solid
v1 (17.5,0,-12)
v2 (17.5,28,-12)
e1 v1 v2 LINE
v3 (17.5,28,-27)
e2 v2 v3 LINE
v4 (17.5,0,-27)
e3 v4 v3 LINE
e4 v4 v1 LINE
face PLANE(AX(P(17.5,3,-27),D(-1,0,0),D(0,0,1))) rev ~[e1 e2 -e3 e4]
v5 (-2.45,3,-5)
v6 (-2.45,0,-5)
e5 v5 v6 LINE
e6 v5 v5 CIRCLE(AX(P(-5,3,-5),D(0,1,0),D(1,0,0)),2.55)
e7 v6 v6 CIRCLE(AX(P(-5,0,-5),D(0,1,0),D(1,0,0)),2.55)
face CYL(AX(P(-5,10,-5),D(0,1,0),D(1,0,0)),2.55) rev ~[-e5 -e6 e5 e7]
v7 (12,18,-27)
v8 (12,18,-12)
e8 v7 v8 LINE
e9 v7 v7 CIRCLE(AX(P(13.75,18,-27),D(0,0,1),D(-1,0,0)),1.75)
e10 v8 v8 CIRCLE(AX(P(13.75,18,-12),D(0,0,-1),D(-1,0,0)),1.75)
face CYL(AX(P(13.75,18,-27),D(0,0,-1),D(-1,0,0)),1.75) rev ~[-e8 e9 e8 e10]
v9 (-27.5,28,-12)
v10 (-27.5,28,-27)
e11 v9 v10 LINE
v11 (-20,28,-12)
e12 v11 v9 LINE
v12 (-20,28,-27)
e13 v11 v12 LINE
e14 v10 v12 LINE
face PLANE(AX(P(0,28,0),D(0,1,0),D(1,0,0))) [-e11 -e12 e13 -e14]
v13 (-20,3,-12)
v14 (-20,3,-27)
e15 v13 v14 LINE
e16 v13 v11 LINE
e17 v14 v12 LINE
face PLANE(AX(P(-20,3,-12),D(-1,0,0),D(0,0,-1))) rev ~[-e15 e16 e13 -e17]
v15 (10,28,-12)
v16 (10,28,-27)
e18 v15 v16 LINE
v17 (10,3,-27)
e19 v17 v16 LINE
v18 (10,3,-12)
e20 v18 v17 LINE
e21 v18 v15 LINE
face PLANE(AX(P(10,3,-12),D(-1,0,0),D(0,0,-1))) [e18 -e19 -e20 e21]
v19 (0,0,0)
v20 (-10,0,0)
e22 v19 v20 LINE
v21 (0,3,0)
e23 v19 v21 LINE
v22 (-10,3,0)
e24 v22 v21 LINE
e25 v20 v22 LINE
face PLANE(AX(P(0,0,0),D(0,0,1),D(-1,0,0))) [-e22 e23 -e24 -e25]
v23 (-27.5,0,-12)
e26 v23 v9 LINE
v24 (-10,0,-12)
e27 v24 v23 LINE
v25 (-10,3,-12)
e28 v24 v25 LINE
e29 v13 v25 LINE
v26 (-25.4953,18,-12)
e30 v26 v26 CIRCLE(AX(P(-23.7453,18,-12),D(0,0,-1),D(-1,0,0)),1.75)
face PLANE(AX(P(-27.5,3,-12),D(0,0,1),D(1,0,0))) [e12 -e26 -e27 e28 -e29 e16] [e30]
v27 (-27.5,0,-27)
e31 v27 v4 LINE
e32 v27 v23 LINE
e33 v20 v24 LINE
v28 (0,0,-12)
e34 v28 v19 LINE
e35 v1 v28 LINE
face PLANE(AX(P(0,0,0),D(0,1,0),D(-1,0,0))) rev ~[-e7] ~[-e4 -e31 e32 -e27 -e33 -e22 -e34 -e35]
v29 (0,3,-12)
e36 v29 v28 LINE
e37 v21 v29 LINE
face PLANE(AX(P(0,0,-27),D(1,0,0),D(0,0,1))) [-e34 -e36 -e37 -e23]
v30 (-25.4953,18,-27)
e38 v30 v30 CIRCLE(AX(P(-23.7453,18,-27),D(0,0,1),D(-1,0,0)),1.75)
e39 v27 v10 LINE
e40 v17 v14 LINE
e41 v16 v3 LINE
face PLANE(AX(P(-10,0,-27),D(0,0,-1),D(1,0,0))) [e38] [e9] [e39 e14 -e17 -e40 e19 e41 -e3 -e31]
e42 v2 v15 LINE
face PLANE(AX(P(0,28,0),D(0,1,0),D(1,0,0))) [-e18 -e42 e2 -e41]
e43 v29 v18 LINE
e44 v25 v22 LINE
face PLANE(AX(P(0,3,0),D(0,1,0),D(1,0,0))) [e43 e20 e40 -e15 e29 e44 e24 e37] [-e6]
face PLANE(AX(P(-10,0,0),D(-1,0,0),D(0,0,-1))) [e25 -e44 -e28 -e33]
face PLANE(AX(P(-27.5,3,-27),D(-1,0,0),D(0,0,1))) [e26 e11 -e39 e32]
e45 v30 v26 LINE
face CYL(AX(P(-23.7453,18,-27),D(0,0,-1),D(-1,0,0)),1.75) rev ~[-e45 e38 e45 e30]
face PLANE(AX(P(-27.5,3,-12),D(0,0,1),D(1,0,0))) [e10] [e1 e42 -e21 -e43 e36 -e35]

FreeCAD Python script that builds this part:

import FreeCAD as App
import Part
import Sketcher

V = App.Vector

doc = App.newDocument("Part")
params = doc.addObject("Spreadsheet::Sheet", "Params")
for row, (alias, value) in enumerate([
    ("sketch1_width", "10 mm"),
    ("sketch1_height", "27 mm"),
    ("pad1_length", "10 mm"),
    ("sketch2_diameter", "5.1 mm"),
    ("pocket1_length", "10 mm"),
    ("sketch3_height", "27 mm"),
    ("sketch3_width", "10 mm"),
    ("pocket2_length", "7 mm"),
    ("sketch4_height", "15 mm"),
    ("sketch4_width", "45 mm"),
    ("pad2_length", "3 mm"),
    ("sketch5_height", "15 mm"),
    ("sketch5_width", "7.5 mm"),
    ("pad3_length", "25 mm"),
    ("sketch6_diameter", "3.5 mm"),
    ("pocket3_length", "25 mm"),
], start=1):
    params.set(f"A{row}", alias)
    params.set(f"B{row}", "=" + value)
    params.setAlias(f"B{row}", alias)

body = doc.addObject("PartDesign::Body", "Body")

sketch1 = doc.addObject("Sketcher::SketchObject", "Sketch")
body.addObject(sketch1)
sketch1.AttachmentSupport = (doc.XZ_Plane, [""])
sketch1.MapMode = "FlatFace"
sketch1.addGeometry(Part.LineSegment(V(-10, 0, 0), V(0, 0, 0)), False)
sketch1.addGeometry(Part.LineSegment(V(0, 0, 0), V(0, -27, 0)), False)
sketch1.addGeometry(Part.LineSegment(V(0, -27, 0), V(-10, -27, 0)), False)
sketch1.addGeometry(Part.LineSegment(V(-10, -27, 0), V(-10, 0, 0)), False)
sketch1.addConstraint(Sketcher.Constraint("Coincident", 0, 2, 1, 1))
sketch1.addConstraint(Sketcher.Constraint("Coincident", 1, 2, 2, 1))
sketch1.addConstraint(Sketcher.Constraint("Coincident", 2, 2, 3, 1))
sketch1.addConstraint(Sketcher.Constraint("Coincident", 3, 2, 0, 1))
sketch1.addConstraint(Sketcher.Constraint("Horizontal", 0))
sketch1.addConstraint(Sketcher.Constraint("Vertical", 1))
sketch1.addConstraint(Sketcher.Constraint("Horizontal", 2))
sketch1.addConstraint(Sketcher.Constraint("Vertical", 3))
sketch1.addConstraint(Sketcher.Constraint("Coincident", 0, 2, -1, 1))
sketch1.addConstraint(Sketcher.Constraint("DistanceX", 0, 1, 0, 2, 10.0))
sketch1.addConstraint(Sketcher.Constraint("DistanceY", 1, 2, 1, 1, 27.0))
sketch1.setExpression("Constraints[9]", "Params.sketch1_width")
sketch1.setExpression("Constraints[10]", "Params.sketch1_height")
pad1 = doc.addObject("PartDesign::Pad", "Pad")
body.addObject(pad1)
pad1.Profile = sketch1
pad1.setExpression("Length", "Params.pad1_length")
pad1.Reversed = True

sketch2 = doc.addObject("Sketcher::SketchObject", "Sketch001")
body.addObject(sketch2)
sketch2.AttachmentSupport = (doc.XZ_Plane, [""])
sketch2.MapMode = "FlatFace"
sketch2.AttachmentOffset = App.Placement(V(0, 0, -10), App.Rotation())
sketch2.addGeometry(Part.Circle(V(-5, -5, 0), V(0, 0, 1), 2.55), False)
sketch2.addConstraint(Sketcher.Constraint("Diameter", 0, 5.1))
sketch2.addConstraint(Sketcher.Constraint("DistanceX", 0, 3, -1, 1, 5.0))
sketch2.addConstraint(Sketcher.Constraint("DistanceY", 0, 3, -1, 1, 5.0))
sketch2.setExpression("Constraints[0]", "Params.sketch2_diameter")
pocket1 = doc.addObject("PartDesign::Pocket", "Pocket")
body.addObject(pocket1)
pocket1.Profile = sketch2
pocket1.setExpression("Length", "Params.pocket1_length")
pocket1.Reversed = True

sketch3 = doc.addObject("Sketcher::SketchObject", "Sketch002")
body.addObject(sketch3)
sketch3.AttachmentSupport = (doc.XZ_Plane, [""])
sketch3.MapMode = "FlatFace"
sketch3.AttachmentOffset = App.Placement(V(0, 0, -10), App.Rotation())
sketch3.addGeometry(Part.LineSegment(V(0, 0, 0), V(0, -27, 0)), False)
sketch3.addGeometry(Part.LineSegment(V(0, -27, 0), V(-10, -27, 0)), False)
sketch3.addGeometry(Part.LineSegment(V(-10, -27, 0), V(-10, 0, 0)), False)
sketch3.addGeometry(Part.LineSegment(V(-10, 0, 0), V(0, 0, 0)), False)
sketch3.addConstraint(Sketcher.Constraint("Coincident", 0, 2, 1, 1))
sketch3.addConstraint(Sketcher.Constraint("Coincident", 1, 2, 2, 1))
sketch3.addConstraint(Sketcher.Constraint("Coincident", 2, 2, 3, 1))
sketch3.addConstraint(Sketcher.Constraint("Coincident", 3, 2, 0, 1))
sketch3.addConstraint(Sketcher.Constraint("Vertical", 0))
sketch3.addConstraint(Sketcher.Constraint("Horizontal", 1))
sketch3.addConstraint(Sketcher.Constraint("Vertical", 2))
sketch3.addConstraint(Sketcher.Constraint("Horizontal", 3))
sketch3.addConstraint(Sketcher.Constraint("Coincident", 3, 2, -1, 1))
sketch3.addConstraint(Sketcher.Constraint("DistanceY", 0, 2, 0, 1, 27.0))
sketch3.addConstraint(Sketcher.Constraint("DistanceX", 1, 2, 1, 1, 10.0))
sketch3.setExpression("Constraints[9]", "Params.sketch3_height")
sketch3.setExpression("Constraints[10]", "Params.sketch3_width")
pocket2 = doc.addObject("PartDesign::Pocket", "Pocket001")
body.addObject(pocket2)
pocket2.Profile = sketch3
pocket2.setExpression("Length", "Params.pocket2_length")
pocket2.Reversed = True

sketch4 = doc.addObject("Sketcher::SketchObject", "Sketch003")
body.addObject(sketch4)
sketch4.AttachmentSupport = (doc.XZ_Plane, [""])
sketch4.MapMode = "FlatFace"
sketch4.AttachmentOffset = App.Placement(V(0, 0, -3), App.Rotation())
sketch4.addGeometry(Part.LineSegment(V(-27.5, -27, 0), V(-27.5, -12, 0)), False)
sketch4.addGeometry(Part.LineSegment(V(-27.5, -12, 0), V(17.5, -12, 0)), False)
sketch4.addGeometry(Part.LineSegment(V(17.5, -12, 0), V(17.5, -27, 0)), False)
sketch4.addGeometry(Part.LineSegment(V(17.5, -27, 0), V(-27.5, -27, 0)), False)
sketch4.addConstraint(Sketcher.Constraint("Coincident", 0, 2, 1, 1))
sketch4.addConstraint(Sketcher.Constraint("Coincident", 1, 2, 2, 1))
sketch4.addConstraint(Sketcher.Constraint("Coincident", 2, 2, 3, 1))
sketch4.addConstraint(Sketcher.Constraint("Coincident", 3, 2, 0, 1))
sketch4.addConstraint(Sketcher.Constraint("Vertical", 0))
sketch4.addConstraint(Sketcher.Constraint("Horizontal", 1))
sketch4.addConstraint(Sketcher.Constraint("Vertical", 2))
sketch4.addConstraint(Sketcher.Constraint("Horizontal", 3))
sketch4.addConstraint(Sketcher.Constraint("DistanceY", 0, 1, 0, 2, 15.0))
sketch4.addConstraint(Sketcher.Constraint("DistanceX", 1, 1, 1, 2, 45.0))
sketch4.addConstraint(Sketcher.Constraint("DistanceY", 0, 2, -1, 1, 12.0))
sketch4.addConstraint(Sketcher.Constraint("DistanceX", 0, 2, -1, 1, 27.5))
sketch4.setExpression("Constraints[8]", "Params.sketch4_height")
sketch4.setExpression("Constraints[9]", "Params.sketch4_width")
pad2 = doc.addObject("PartDesign::Pad", "Pad001")
body.addObject(pad2)
pad2.Profile = sketch4
pad2.setExpression("Length", "Params.pad2_length")

sketch5 = doc.addObject("Sketcher::SketchObject", "Sketch004")
body.addObject(sketch5)
sketch5.AttachmentSupport = (doc.XZ_Plane, [""])
sketch5.MapMode = "FlatFace"
sketch5.AttachmentOffset = App.Placement(V(0, 0, -3), App.Rotation())
sketch5.addGeometry(Part.LineSegment(V(10, -12, 0), V(17.5, -12, 0)), False)
sketch5.addGeometry(Part.LineSegment(V(17.5, -12, 0), V(17.5, -27, 0)), False)
sketch5.addGeometry(Part.LineSegment(V(17.5, -27, 0), V(10, -27, 0)), False)
sketch5.addGeometry(Part.LineSegment(V(10, -27, 0), V(10, -12, 0)), False)
sketch5.addGeometry(Part.LineSegment(V(-20, -12, 0), V(-20, -27, 0)), False)
sketch5.addGeometry(Part.LineSegment(V(-20, -27, 0), V(-27.5, -27, 0)), False)
sketch5.addGeometry(Part.LineSegment(V(-27.5, -27, 0), V(-27.5, -12, 0)), False)
sketch5.addGeometry(Part.LineSegment(V(-27.5, -12, 0), V(-20, -12, 0)), False)
sketch5.addConstraint(Sketcher.Constraint("Coincident", 0, 2, 1, 1))
sketch5.addConstraint(Sketcher.Constraint("Coincident", 1, 2, 2, 1))
sketch5.addConstraint(Sketcher.Constraint("Coincident", 2, 2, 3, 1))
sketch5.addConstraint(Sketcher.Constraint("Coincident", 3, 2, 0, 1))
sketch5.addConstraint(Sketcher.Constraint("Coincident", 4, 2, 5, 1))
sketch5.addConstraint(Sketcher.Constraint("Coincident", 5, 2, 6, 1))
sketch5.addConstraint(Sketcher.Constraint("Coincident", 6, 2, 7, 1))
sketch5.addConstraint(Sketcher.Constraint("Coincident", 7, 2, 4, 1))
sketch5.addConstraint(Sketcher.Constraint("Horizontal", 0))
sketch5.addConstraint(Sketcher.Constraint("Vertical", 1))
sketch5.addConstraint(Sketcher.Constraint("Horizontal", 2))
sketch5.addConstraint(Sketcher.Constraint("Vertical", 3))
sketch5.addConstraint(Sketcher.Constraint("Vertical", 4))
sketch5.addConstraint(Sketcher.Constraint("Horizontal", 5))
sketch5.addConstraint(Sketcher.Constraint("Vertical", 6))
sketch5.addConstraint(Sketcher.Constraint("Horizontal", 7))
sketch5.addConstraint(Sketcher.Constraint("Horizontal", 2, 2, 4, 2))
sketch5.addConstraint(Sketcher.Constraint("Horizontal", 3, 2, 6, 2))
sketch5.addConstraint(Sketcher.Constraint("Equal", 2, 5))
sketch5.addConstraint(Sketcher.Constraint("DistanceY", 1, 2, 1, 1, 15.0))
sketch5.addConstraint(Sketcher.Constraint("DistanceX", 0, 1, 0, 2, 7.5))
sketch5.addConstraint(Sketcher.Constraint("DistanceY", 0, 2, -1, 1, 12.0))
sketch5.addConstraint(Sketcher.Constraint("DistanceX", -1, 1, 2, 2, 10.0))
sketch5.addConstraint(Sketcher.Constraint("DistanceX", 4, 2, -1, 1, 20.0))
sketch5.setExpression("Constraints[19]", "Params.sketch5_height")
sketch5.setExpression("Constraints[20]", "Params.sketch5_width")
pad3 = doc.addObject("PartDesign::Pad", "Pad002")
body.addObject(pad3)
pad3.Profile = sketch5
pad3.setExpression("Length", "Params.pad3_length")
pad3.Reversed = True

sketch6 = doc.addObject("Sketcher::SketchObject", "Sketch005")
body.addObject(sketch6)
sketch6.AttachmentSupport = (doc.XY_Plane, [""])
sketch6.MapMode = "FlatFace"
sketch6.AttachmentOffset = App.Placement(V(0, 0, -27), App.Rotation())
sketch6.addGeometry(Part.Circle(V(13.75, 18, 0), V(0, 0, 1), 1.75), False)
sketch6.addGeometry(Part.Circle(V(-23.7453, 18, 0), V(0, 0, 1), 1.75), False)
sketch6.addConstraint(Sketcher.Constraint("Equal", 0, 1))
sketch6.addConstraint(Sketcher.Constraint("Horizontal", 0, 3, 1, 3))
sketch6.addConstraint(Sketcher.Constraint("Diameter", 0, 3.5))
sketch6.addConstraint(Sketcher.Constraint("DistanceY", -1, 1, 0, 3, 18.0))
sketch6.addConstraint(Sketcher.Constraint("DistanceX", -1, 1, 0, 3, 13.75))
sketch6.addConstraint(Sketcher.Constraint("DistanceX", 1, 3, -1, 1, 23.7453))
sketch6.setExpression("Constraints[2]", "Params.sketch6_diameter")
pocket3 = doc.addObject("PartDesign::Pocket", "Pocket002")
body.addObject(pocket3)
pocket3.Profile = sketch6
pocket3.setExpression("Length", "Params.pocket3_length")
pocket3.Reversed = True

doc.recompute()
